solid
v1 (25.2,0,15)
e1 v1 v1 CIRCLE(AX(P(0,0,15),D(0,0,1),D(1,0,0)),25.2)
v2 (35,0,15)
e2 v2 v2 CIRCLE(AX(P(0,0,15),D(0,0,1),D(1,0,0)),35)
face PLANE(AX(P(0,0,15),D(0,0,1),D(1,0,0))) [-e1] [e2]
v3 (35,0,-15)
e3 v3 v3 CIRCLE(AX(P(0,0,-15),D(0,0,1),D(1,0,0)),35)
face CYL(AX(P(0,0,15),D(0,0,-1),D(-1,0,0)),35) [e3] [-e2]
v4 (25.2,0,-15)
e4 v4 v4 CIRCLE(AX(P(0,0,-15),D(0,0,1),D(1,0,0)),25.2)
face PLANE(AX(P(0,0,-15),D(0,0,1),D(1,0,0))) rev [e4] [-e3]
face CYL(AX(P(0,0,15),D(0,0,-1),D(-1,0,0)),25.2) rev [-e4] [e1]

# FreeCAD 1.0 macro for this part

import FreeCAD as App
import Part
import Sketcher
from FreeCAD import Vector

doc = App.newDocument("Part")
body = doc.addObject("PartDesign::Body", "Body")

sketch1 = body.newObject("Sketcher::SketchObject", "Sketch")
sketch1.AttachmentSupport = (doc.getObject("XY_Plane"), [""])
sketch1.MapMode = "FlatFace"
sketch1.addGeometry([
    Part.Circle(Vector(0, 0, 0), Vector(0, 0, 1), 35),
    Part.Circle(Vector(0, 0, 0), Vector(0, 0, 1), 25),
], False)
sketch1.addConstraint([
    Sketcher.Constraint("Coincident", 0, 3, -1, 1),
    Sketcher.Constraint("Coincident", 1, 3, -1, 1),
    Sketcher.Constraint("Diameter", 0, 70.0),
    Sketcher.Constraint("Diameter", 1, 50.4),
])
pad1 = body.newObject("PartDesign::Pad", "Pad")
pad1.Profile = sketch1
pad1.Length = 30
pad1.Midplane = True

doc.recompute()
